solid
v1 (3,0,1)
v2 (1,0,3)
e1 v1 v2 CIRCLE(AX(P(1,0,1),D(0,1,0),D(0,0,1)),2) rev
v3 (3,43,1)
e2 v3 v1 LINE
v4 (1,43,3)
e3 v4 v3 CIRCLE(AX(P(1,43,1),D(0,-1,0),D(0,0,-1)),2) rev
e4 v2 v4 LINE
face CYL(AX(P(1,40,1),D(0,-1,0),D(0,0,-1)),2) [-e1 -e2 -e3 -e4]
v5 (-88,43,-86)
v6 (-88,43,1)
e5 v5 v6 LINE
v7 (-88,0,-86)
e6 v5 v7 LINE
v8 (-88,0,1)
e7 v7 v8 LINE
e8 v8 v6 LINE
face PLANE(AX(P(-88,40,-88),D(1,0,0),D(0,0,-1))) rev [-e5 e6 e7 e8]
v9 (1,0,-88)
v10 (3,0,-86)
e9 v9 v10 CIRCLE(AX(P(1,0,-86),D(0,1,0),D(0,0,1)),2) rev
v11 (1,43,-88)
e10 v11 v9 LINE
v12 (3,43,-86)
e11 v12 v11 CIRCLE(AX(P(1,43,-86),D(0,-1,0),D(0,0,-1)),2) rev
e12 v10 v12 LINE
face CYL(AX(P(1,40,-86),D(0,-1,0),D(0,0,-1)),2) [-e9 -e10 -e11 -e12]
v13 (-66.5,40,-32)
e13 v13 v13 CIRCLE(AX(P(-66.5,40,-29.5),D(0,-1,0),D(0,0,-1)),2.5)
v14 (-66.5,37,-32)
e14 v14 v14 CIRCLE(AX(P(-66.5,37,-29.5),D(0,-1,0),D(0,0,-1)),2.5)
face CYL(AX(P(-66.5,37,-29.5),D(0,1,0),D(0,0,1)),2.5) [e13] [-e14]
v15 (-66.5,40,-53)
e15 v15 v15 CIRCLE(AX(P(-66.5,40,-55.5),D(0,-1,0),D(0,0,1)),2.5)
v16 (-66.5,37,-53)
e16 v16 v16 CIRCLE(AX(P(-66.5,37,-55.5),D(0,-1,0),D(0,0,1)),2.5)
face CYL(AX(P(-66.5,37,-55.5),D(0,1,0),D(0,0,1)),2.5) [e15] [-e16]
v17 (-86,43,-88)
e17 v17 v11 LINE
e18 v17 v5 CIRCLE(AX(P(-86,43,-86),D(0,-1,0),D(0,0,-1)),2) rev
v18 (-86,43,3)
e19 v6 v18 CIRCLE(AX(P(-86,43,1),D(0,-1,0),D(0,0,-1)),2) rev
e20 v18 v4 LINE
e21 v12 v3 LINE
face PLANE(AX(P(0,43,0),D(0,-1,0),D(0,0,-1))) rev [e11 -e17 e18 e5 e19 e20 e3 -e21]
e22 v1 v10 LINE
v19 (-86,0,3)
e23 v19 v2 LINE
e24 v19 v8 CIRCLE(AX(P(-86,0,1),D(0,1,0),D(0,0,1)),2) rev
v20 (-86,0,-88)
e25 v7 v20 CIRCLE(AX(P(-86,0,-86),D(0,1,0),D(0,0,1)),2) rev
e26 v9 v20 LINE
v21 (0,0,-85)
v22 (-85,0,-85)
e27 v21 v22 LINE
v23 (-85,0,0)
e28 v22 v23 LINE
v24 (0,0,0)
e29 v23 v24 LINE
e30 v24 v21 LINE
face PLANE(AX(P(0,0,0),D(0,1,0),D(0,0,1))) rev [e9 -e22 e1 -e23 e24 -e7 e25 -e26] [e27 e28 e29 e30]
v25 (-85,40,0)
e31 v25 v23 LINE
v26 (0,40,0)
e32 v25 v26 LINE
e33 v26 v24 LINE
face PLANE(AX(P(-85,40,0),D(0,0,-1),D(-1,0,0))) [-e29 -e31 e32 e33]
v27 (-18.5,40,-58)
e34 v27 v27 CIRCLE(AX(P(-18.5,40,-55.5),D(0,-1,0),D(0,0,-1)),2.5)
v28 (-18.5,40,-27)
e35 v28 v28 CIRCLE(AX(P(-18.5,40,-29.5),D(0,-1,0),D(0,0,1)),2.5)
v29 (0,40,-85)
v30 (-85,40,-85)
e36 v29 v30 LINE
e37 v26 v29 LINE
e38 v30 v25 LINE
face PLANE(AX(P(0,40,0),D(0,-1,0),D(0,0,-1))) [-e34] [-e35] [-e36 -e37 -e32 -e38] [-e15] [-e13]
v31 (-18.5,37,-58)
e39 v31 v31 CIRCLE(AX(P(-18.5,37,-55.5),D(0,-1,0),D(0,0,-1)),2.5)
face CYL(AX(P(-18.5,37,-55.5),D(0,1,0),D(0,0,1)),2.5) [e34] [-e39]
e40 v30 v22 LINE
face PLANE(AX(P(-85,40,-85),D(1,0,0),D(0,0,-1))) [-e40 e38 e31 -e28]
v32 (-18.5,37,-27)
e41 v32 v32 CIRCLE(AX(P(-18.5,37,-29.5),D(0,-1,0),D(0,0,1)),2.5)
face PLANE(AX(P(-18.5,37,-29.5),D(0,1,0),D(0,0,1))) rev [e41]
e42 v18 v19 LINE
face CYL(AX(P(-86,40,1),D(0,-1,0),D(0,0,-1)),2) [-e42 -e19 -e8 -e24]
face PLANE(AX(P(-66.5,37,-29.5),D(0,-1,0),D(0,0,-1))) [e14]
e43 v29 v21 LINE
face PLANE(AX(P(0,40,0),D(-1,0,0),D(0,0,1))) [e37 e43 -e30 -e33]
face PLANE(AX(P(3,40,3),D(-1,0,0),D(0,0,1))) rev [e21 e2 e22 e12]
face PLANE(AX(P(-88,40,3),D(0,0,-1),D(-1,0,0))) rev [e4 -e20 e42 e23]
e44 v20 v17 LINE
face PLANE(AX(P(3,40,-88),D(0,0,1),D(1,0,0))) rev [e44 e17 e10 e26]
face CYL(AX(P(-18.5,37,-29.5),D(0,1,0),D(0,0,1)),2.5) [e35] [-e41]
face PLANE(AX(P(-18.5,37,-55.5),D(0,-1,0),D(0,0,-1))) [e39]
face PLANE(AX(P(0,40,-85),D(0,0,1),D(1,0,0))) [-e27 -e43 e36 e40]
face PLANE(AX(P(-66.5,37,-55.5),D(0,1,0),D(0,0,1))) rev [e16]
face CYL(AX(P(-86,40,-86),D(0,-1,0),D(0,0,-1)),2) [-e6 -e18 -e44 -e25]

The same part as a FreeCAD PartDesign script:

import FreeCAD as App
import Part
import Sketcher
from FreeCAD import Vector


def edges_at(feature, points):
    """Names of the edges that pass closest to the given points."""
    edges = feature.Shape.Edges
    near = lambda p: min(range(len(edges)), key=lambda i: edges[i].distToShape(Part.Vertex(*p))[0])
    return sorted({f"Edge{near(p) + 1}" for p in points})

doc = App.newDocument("Part")
body = doc.addObject("PartDesign::Body", "Body")

sketch1 = doc.addObject("Sketcher::SketchObject", "Sketch")
body.addObject(sketch1)
sketch1.AttachmentSupport = (doc.XZ_Plane, [""])
sketch1.MapMode = "FlatFace"
sketch1.addGeometry([
    Part.LineSegment(Vector(-88, -88, 0), Vector(-88, 3, 0)),
    Part.LineSegment(Vector(-88, 3, 0), Vector(3, 3, 0)),
    Part.LineSegment(Vector(3, 3, 0), Vector(3, -88, 0)),
    Part.LineSegment(Vector(3, -88, 0), Vector(-88, -88, 0)),
    Part.LineSegment(Vector(0, 0, 0), Vector(-85, 0, 0)),
    Part.LineSegment(Vector(-85, 0, 0), Vector(-85, -85, 0)),
    Part.LineSegment(Vector(-85, -85, 0), Vector(0, -85, 0)),
    Part.LineSegment(Vector(0, -85, 0), Vector(0, 0, 0)),
], False)
sketch1.addConstraint([
    Sketcher.Constraint("Coincident", 0, 2, 1, 1),
    Sketcher.Constraint("Coincident", 1, 2, 2, 1),
    Sketcher.Constraint("Coincident", 2, 2, 3, 1),
    Sketcher.Constraint("Coincident", 3, 2, 0, 1),
    Sketcher.Constraint("Coincident", 4, 2, 5, 1),
    Sketcher.Constraint("Coincident", 5, 2, 6, 1),
    Sketcher.Constraint("Coincident", 6, 2, 7, 1),
    Sketcher.Constraint("Coincident", 7, 2, 4, 1),
    Sketcher.Constraint("Vertical", 0),
    Sketcher.Constraint("Horizontal", 1),
    Sketcher.Constraint("Vertical", 2),
    Sketcher.Constraint("Horizontal", 3),
    Sketcher.Constraint("Horizontal", 4),
    Sketcher.Constraint("Vertical", 5),
    Sketcher.Constraint("Horizontal", 6),
    Sketcher.Constraint("Vertical", 7),
    Sketcher.Constraint("Coincident", 7, 2, -1, 1),
    Sketcher.Constraint("Equal", 3, 0),
    Sketcher.Constraint("Equal", 6, 5),
    Sketcher.Constraint("DistanceX", 1, 1, 1, 2, 91.0),
    Sketcher.Constraint("DistanceX", 4, 2, 4, 1, 85.0),
    Sketcher.Constraint("DistanceX", 0, 2, -1, 1, 88.0),
    Sketcher.Constraint("DistanceY", -1, 1, 0, 2, 3.0),
])
pad1 = doc.addObject("PartDesign::Pad", "Pad")
body.addObject(pad1)
pad1.Profile = sketch1
pad1.Length = 40
pad1.Reversed = True

sketch2 = doc.addObject("Sketcher::SketchObject", "Sketch001")
body.addObject(sketch2)
sketch2.AttachmentSupport = (doc.XZ_Plane, [""])
sketch2.MapMode = "FlatFace"
sketch2.AttachmentOffset = App.Placement(Vector(0, 0, -40), App.Rotation())
sketch2.addGeometry([
    Part.LineSegment(Vector(-88, -88, 0), Vector(-88, 3, 0)),
    Part.LineSegment(Vector(-88, 3, 0), Vector(3, 3, 0)),
    Part.LineSegment(Vector(3, 3, 0), Vector(3, -88, 0)),
    Part.LineSegment(Vector(3, -88, 0), Vector(-88, -88, 0)),
], False)
sketch2.addConstraint([
    Sketcher.Constraint("Coincident", 0, 2, 1, 1),
    Sketcher.Constraint("Coincident", 1, 2, 2, 1),
    Sketcher.Constraint("Coincident", 2, 2, 3, 1),
    Sketcher.Constraint("Coincident", 3, 2, 0, 1),
    Sketcher.Constraint("Vertical", 0),
    Sketcher.Constraint("Horizontal", 1),
    Sketcher.Constraint("Vertical", 2),
    Sketcher.Constraint("Horizontal", 3),
    Sketcher.Constraint("Equal", 3, 0),
    Sketcher.Constraint("DistanceX", 1, 1, 1, 2, 91.0),
    Sketcher.Constraint("DistanceX", 0, 2, -1, 1, 88.0),
    Sketcher.Constraint("DistanceY", -1, 1, 0, 2, 3.0),
])
pad2 = doc.addObject("PartDesign::Pad", "Pad001")
body.addObject(pad2)
pad2.Profile = sketch2
pad2.Length = 3
pad2.Reversed = True
doc.recompute()

fillet = doc.addObject("PartDesign::Fillet", "Fillet")
body.addObject(fillet)
fillet.Base = (pad2, edges_at(pad2, [
    (3, 21.5, -88),
    (3, 21.5, 3),
    (-88, 21.5, 3),
    (-88, 21.5, -88),
]))
fillet.Radius = 2

sketch3 = doc.addObject("Sketcher::SketchObject", "Sketch002")
body.addObject(sketch3)
sketch3.AttachmentSupport = (doc.XZ_Plane, [""])
sketch3.MapMode = "FlatFace"
sketch3.AttachmentOffset = App.Placement(Vector(0, 0, -40), App.Rotation())
sketch3.addGeometry([
    Part.Circle(Vector(-66.5, -29.5, 0), Vector(0, 0, 1), 2.5),
    Part.Circle(Vector(-66.5, -55.5, 0), Vector(0, 0, 1), 2.5),
    Part.Circle(Vector(-18.5, -55.5, 0), Vector(0, 0, 1), 2.5),
    Part.Circle(Vector(-18.5, -29.5, 0), Vector(0, 0, 1), 2.5),
], False)
sketch3.addConstraint([
    Sketcher.Constraint("Equal", 0, 1),
    Sketcher.Constraint("Equal", 1, 2),
    Sketcher.Constraint("Equal", 2, 3),
    Sketcher.Constraint("Horizontal", 1, 3, 2, 3),
    Sketcher.Constraint("Horizontal", 0, 3, 3, 3),
    Sketcher.Constraint("Vertical", 0, 3, 1, 3),
    Sketcher.Constraint("Vertical", 2, 3, 3, 3),
    Sketcher.Constraint("Diameter", 0, 5.0),
    Sketcher.Constraint("DistanceY", 1, 3, 0, 3, 26.0),
    Sketcher.Constraint("DistanceX", 1, 3, 2, 3, 48.0),
    Sketcher.Constraint("DistanceX", 0, 3, -1, 1, 66.5),
    Sketcher.Constraint("DistanceY", 0, 3, -1, 1, 29.5),
])
pad3 = doc.addObject("PartDesign::Pad", "Pad002")
body.addObject(pad3)
pad3.Profile = sketch3
pad3.Length = 3

doc.recompute()
